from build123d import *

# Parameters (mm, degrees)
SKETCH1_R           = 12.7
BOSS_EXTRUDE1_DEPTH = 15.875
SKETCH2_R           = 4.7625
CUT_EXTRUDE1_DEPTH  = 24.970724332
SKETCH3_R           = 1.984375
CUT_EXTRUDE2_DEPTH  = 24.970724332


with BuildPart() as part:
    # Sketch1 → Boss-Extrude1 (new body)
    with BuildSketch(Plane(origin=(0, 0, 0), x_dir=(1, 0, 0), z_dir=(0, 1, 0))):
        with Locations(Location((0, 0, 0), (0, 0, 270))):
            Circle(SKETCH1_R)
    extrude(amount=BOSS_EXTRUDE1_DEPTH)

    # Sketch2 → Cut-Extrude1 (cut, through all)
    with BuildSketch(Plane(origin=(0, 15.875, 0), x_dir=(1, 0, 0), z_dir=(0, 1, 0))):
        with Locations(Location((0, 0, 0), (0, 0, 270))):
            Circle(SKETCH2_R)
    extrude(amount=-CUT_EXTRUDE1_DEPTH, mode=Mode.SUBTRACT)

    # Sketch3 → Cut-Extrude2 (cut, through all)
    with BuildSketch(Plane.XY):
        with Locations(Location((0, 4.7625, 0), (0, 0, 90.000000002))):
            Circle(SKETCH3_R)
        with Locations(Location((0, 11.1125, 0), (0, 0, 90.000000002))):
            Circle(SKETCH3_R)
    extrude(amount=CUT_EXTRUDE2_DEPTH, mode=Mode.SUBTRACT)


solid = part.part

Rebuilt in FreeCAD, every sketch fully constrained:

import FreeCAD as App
import Part
import Sketcher
from FreeCAD import Vector
Q = App.Units.Quantity

doc = App.newDocument("Part")
body = doc.addObject("PartDesign::Body", "Body")

sketch1 = body.newObject("Sketcher::SketchObject", "Sketch")
sketch1.AttachmentSupport = (doc.getObject("XZ_Plane"), [""])
sketch1.MapMode = "FlatFace"
sketch1.addGeometry(Part.Circle(Vector(0, 0, 0), Vector(0, 0, 1), 13), False)
sketch1.addConstraint([
    Sketcher.Constraint("Coincident", 0, 3, -1, 1),
    Sketcher.Constraint("Diameter", 0, Q("1 in")),
])
pad1 = body.newObject("PartDesign::Pad", "Pad")
pad1.Profile = sketch1
pad1.Length = Q("0.625 in")
pad1.Reversed = True

sketch2 = body.newObject("Sketcher::SketchObject", "Sketch001")
sketch2.AttachmentSupport = (doc.getObject("XZ_Plane"), [""])
sketch2.MapMode = "FlatFace"
sketch2.AttachmentOffset = App.Placement(Vector(0, 0, -0.625 * 25.4), App.Rotation())
sketch2.addGeometry(Part.Circle(Vector(0, 0, 0), Vector(0, 0, 1), 4.8), False)
sketch2.addConstraint([
    Sketcher.Constraint("Coincident", 0, 3, -1, 1),
    Sketcher.Constraint("Diameter", 0, Q("0.375 in")),
])
pocket1 = body.newObject("PartDesign::Pocket", "Pocket")
pocket1.Profile = sketch2
pocket1.Type = "ThroughAll"
pocket1.Reversed = True

sketch3 = body.newObject("Sketcher::SketchObject", "Sketch002")
sketch3.AttachmentSupport = (doc.getObject("XY_Plane"), [""])
sketch3.MapMode = "FlatFace"
sketch3.addGeometry([
    Part.Circle(Vector(0, 4.8, 0), Vector(0, 0, 1), 2),
    Part.Circle(Vector(0, 11.1, 0), Vector(0, 0, 1), 2),
], False)
sketch3.addConstraint([
    Sketcher.Constraint("Equal", 0, 1),
    Sketcher.Constraint("PointOnObject", 0, 3, -2),
    Sketcher.Constraint("PointOnObject", 1, 3, -2),
    Sketcher.Constraint("Diameter", 0, Q("0.15625 in")),
    Sketcher.Constraint("DistanceY", 0, 3, 1, 3, Q("0.25 in")),
    Sketcher.Constraint("DistanceY", -1, 1, 0, 3, Q("0.1875 in")),
])
pocket2 = body.newObject("PartDesign::Pocket", "Pocket001")
pocket2.Profile = sketch3
pocket2.Type = "ThroughAll"
pocket2.Reversed = True

doc.recompute()
